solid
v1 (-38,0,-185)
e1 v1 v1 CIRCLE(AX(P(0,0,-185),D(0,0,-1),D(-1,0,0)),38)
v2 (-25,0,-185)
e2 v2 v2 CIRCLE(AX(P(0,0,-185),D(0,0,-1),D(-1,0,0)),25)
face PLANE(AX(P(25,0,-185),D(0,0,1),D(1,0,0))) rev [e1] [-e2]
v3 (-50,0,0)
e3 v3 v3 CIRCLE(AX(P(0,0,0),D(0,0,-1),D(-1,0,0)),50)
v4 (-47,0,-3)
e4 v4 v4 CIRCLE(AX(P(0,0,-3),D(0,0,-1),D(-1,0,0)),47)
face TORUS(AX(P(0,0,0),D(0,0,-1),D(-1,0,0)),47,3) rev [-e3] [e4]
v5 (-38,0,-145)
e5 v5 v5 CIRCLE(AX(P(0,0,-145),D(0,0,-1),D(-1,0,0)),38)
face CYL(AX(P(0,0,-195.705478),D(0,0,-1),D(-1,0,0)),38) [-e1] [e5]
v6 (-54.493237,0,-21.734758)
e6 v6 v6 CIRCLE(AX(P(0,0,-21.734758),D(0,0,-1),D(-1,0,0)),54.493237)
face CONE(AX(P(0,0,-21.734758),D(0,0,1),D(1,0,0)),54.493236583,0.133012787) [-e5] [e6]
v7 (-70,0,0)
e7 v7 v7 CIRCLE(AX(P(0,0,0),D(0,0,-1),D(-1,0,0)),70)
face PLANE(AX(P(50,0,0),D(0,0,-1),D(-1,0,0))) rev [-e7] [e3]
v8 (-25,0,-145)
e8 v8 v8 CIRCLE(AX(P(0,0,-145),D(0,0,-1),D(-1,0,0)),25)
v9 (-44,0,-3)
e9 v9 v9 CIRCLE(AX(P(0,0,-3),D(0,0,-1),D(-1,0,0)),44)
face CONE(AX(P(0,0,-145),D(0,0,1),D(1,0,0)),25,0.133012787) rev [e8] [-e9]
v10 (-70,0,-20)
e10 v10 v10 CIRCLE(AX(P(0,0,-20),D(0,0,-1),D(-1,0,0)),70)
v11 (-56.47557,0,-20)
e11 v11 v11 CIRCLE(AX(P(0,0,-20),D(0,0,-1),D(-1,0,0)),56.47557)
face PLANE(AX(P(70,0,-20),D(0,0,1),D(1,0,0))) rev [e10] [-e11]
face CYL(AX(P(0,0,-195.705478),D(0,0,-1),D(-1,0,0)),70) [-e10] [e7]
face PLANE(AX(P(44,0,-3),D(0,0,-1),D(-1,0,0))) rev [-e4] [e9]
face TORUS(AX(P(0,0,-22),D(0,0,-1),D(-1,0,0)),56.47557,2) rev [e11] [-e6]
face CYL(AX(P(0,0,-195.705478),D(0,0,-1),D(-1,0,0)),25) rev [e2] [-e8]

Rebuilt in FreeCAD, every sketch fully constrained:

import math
import FreeCAD as App
import Part
import Sketcher
from FreeCAD import Vector
Q = App.Units.Quantity

doc = App.newDocument("Part")
params = doc.addObject("Spreadsheet::Sheet", "Params")
for row, (alias, value) in enumerate([
    ("sketch1_radius", "3 mm"),
    ("sketch1_radius2", "2 mm"),
    ("sketch1_width", "3 mm"),
    ("sketch1_width2", "20 mm"),
    ("sketch1_width3", "13 mm"),
    ("revolution_angle", "360 deg"),
], start=1):
    params.set(f"A{row}", alias)
    params.set(f"B{row}", "=" + value)
    params.setAlias(f"B{row}", alias)

body = doc.addObject("PartDesign::Body", "Body")

# Sketch on XZ plane
sketch1 = body.newObject("Sketcher::SketchObject", "Sketch")
sketch1.AttachmentSupport = (doc.getObject("XZ_Plane"), [""])
sketch1.MapMode = "FlatFace"
sketch1.addGeometry([
    Part.LineSegment(Vector(44, -3, 0), Vector(47, -3, 0)),  # 0
    Part.ArcOfCircle(Part.Circle(Vector(47, 0, 0), Vector(0, 0, 1), 3), math.radians(-90), math.radians(0)),  # 1
    Part.LineSegment(Vector(50, 0, 0), Vector(70, 0, 0)),  # 2
    Part.LineSegment(Vector(70, 0, 0), Vector(70, -20, 0)),  # 3
    Part.LineSegment(Vector(70, -20, 0), Vector(56.5, -20, 0)),  # 4
    Part.ArcOfCircle(Part.Circle(Vector(56.5, -22, 0), Vector(0, 0, 1), 2), math.radians(90), math.radians(172)),  # 5
    Part.LineSegment(Vector(54.5, -21.7, 0), Vector(38, -145, 0)),  # 6
    Part.LineSegment(Vector(38, -145, 0), Vector(38, -185, 0)),  # 7
    Part.LineSegment(Vector(38, -185, 0), Vector(25, -185, 0)),  # 8
    Part.LineSegment(Vector(25, -185, 0), Vector(25, -145, 0)),  # 9
    Part.LineSegment(Vector(25, -145, 0), Vector(44, -3, 0)),  # 10
], False)
sketch1.addConstraint([
    Sketcher.Constraint("Tangent", 0, 2, 1, 1),
    Sketcher.Constraint("Coincident", 1, 2, 2, 1),
    Sketcher.Constraint("Coincident", 2, 2, 3, 1),
    Sketcher.Constraint("Coincident", 3, 2, 4, 1),
    Sketcher.Constraint("Tangent", 4, 2, 5, 1),
    Sketcher.Constraint("Tangent", 5, 2, 6, 1),
    Sketcher.Constraint("Coincident", 6, 2, 7, 1),
    Sketcher.Constraint("Coincident", 7, 2, 8, 1),
    Sketcher.Constraint("Coincident", 8, 2, 9, 1),
    Sketcher.Constraint("Coincident", 9, 2, 10, 1),
    Sketcher.Constraint("Coincident", 10, 2, 0, 1),
    Sketcher.Constraint("Horizontal", 0),
    Sketcher.Constraint("Horizontal", 2),
    Sketcher.Constraint("Vertical", 3),
    Sketcher.Constraint("Horizontal", 4),
    Sketcher.Constraint("Vertical", 7),
    Sketcher.Constraint("Horizontal", 8),
    Sketcher.Constraint("Vertical", 9),
    Sketcher.Constraint("PointOnObject", 1, 3, -1),
    Sketcher.Constraint("PointOnObject", 1, 2, -1),
    Sketcher.Constraint("Parallel", 6, 10),
    Sketcher.Constraint("Horizontal", 6, 2, 9, 2),
    Sketcher.Constraint("Equal", 2, 3),
    Sketcher.Constraint("Radius", 1, Q("3 mm")),
    Sketcher.Constraint("Radius", 5, Q("2 mm")),
    Sketcher.Constraint("DistanceX", 0, 1, 0, 2, Q("3 mm")),
    Sketcher.Constraint("DistanceX", 2, 1, 2, 2, Q("20 mm")),
    Sketcher.Constraint("DistanceX", 8, 2, 8, 1, Q("13 mm")),
    Sketcher.Constraint("DistanceY", 7, 2, 7, 1, Q("40 mm")),
    Sketcher.Constraint("DistanceX", -1, 1, 1, 3, Q("47 mm")),
    Sketcher.Constraint("DistanceX", -1, 1, 6, 2, Q("38 mm")),
    Sketcher.Constraint("DistanceY", 6, 2, -1, 1, Q("145 mm")),
])
sketch1.setExpression("Constraints[23]", "Params.sketch1_radius")
sketch1.setExpression("Constraints[24]", "Params.sketch1_radius2")
sketch1.setExpression("Constraints[25]", "Params.sketch1_width")
sketch1.setExpression("Constraints[26]", "Params.sketch1_width2")
sketch1.setExpression("Constraints[27]", "Params.sketch1_width3")
revolution = body.newObject("PartDesign::Revolution", "Revolution")
revolution.Profile = sketch1
revolution.ReferenceAxis = (sketch1, ["V_Axis"])
revolution.setExpression("Angle", "Params.revolution_angle")

doc.recompute()
